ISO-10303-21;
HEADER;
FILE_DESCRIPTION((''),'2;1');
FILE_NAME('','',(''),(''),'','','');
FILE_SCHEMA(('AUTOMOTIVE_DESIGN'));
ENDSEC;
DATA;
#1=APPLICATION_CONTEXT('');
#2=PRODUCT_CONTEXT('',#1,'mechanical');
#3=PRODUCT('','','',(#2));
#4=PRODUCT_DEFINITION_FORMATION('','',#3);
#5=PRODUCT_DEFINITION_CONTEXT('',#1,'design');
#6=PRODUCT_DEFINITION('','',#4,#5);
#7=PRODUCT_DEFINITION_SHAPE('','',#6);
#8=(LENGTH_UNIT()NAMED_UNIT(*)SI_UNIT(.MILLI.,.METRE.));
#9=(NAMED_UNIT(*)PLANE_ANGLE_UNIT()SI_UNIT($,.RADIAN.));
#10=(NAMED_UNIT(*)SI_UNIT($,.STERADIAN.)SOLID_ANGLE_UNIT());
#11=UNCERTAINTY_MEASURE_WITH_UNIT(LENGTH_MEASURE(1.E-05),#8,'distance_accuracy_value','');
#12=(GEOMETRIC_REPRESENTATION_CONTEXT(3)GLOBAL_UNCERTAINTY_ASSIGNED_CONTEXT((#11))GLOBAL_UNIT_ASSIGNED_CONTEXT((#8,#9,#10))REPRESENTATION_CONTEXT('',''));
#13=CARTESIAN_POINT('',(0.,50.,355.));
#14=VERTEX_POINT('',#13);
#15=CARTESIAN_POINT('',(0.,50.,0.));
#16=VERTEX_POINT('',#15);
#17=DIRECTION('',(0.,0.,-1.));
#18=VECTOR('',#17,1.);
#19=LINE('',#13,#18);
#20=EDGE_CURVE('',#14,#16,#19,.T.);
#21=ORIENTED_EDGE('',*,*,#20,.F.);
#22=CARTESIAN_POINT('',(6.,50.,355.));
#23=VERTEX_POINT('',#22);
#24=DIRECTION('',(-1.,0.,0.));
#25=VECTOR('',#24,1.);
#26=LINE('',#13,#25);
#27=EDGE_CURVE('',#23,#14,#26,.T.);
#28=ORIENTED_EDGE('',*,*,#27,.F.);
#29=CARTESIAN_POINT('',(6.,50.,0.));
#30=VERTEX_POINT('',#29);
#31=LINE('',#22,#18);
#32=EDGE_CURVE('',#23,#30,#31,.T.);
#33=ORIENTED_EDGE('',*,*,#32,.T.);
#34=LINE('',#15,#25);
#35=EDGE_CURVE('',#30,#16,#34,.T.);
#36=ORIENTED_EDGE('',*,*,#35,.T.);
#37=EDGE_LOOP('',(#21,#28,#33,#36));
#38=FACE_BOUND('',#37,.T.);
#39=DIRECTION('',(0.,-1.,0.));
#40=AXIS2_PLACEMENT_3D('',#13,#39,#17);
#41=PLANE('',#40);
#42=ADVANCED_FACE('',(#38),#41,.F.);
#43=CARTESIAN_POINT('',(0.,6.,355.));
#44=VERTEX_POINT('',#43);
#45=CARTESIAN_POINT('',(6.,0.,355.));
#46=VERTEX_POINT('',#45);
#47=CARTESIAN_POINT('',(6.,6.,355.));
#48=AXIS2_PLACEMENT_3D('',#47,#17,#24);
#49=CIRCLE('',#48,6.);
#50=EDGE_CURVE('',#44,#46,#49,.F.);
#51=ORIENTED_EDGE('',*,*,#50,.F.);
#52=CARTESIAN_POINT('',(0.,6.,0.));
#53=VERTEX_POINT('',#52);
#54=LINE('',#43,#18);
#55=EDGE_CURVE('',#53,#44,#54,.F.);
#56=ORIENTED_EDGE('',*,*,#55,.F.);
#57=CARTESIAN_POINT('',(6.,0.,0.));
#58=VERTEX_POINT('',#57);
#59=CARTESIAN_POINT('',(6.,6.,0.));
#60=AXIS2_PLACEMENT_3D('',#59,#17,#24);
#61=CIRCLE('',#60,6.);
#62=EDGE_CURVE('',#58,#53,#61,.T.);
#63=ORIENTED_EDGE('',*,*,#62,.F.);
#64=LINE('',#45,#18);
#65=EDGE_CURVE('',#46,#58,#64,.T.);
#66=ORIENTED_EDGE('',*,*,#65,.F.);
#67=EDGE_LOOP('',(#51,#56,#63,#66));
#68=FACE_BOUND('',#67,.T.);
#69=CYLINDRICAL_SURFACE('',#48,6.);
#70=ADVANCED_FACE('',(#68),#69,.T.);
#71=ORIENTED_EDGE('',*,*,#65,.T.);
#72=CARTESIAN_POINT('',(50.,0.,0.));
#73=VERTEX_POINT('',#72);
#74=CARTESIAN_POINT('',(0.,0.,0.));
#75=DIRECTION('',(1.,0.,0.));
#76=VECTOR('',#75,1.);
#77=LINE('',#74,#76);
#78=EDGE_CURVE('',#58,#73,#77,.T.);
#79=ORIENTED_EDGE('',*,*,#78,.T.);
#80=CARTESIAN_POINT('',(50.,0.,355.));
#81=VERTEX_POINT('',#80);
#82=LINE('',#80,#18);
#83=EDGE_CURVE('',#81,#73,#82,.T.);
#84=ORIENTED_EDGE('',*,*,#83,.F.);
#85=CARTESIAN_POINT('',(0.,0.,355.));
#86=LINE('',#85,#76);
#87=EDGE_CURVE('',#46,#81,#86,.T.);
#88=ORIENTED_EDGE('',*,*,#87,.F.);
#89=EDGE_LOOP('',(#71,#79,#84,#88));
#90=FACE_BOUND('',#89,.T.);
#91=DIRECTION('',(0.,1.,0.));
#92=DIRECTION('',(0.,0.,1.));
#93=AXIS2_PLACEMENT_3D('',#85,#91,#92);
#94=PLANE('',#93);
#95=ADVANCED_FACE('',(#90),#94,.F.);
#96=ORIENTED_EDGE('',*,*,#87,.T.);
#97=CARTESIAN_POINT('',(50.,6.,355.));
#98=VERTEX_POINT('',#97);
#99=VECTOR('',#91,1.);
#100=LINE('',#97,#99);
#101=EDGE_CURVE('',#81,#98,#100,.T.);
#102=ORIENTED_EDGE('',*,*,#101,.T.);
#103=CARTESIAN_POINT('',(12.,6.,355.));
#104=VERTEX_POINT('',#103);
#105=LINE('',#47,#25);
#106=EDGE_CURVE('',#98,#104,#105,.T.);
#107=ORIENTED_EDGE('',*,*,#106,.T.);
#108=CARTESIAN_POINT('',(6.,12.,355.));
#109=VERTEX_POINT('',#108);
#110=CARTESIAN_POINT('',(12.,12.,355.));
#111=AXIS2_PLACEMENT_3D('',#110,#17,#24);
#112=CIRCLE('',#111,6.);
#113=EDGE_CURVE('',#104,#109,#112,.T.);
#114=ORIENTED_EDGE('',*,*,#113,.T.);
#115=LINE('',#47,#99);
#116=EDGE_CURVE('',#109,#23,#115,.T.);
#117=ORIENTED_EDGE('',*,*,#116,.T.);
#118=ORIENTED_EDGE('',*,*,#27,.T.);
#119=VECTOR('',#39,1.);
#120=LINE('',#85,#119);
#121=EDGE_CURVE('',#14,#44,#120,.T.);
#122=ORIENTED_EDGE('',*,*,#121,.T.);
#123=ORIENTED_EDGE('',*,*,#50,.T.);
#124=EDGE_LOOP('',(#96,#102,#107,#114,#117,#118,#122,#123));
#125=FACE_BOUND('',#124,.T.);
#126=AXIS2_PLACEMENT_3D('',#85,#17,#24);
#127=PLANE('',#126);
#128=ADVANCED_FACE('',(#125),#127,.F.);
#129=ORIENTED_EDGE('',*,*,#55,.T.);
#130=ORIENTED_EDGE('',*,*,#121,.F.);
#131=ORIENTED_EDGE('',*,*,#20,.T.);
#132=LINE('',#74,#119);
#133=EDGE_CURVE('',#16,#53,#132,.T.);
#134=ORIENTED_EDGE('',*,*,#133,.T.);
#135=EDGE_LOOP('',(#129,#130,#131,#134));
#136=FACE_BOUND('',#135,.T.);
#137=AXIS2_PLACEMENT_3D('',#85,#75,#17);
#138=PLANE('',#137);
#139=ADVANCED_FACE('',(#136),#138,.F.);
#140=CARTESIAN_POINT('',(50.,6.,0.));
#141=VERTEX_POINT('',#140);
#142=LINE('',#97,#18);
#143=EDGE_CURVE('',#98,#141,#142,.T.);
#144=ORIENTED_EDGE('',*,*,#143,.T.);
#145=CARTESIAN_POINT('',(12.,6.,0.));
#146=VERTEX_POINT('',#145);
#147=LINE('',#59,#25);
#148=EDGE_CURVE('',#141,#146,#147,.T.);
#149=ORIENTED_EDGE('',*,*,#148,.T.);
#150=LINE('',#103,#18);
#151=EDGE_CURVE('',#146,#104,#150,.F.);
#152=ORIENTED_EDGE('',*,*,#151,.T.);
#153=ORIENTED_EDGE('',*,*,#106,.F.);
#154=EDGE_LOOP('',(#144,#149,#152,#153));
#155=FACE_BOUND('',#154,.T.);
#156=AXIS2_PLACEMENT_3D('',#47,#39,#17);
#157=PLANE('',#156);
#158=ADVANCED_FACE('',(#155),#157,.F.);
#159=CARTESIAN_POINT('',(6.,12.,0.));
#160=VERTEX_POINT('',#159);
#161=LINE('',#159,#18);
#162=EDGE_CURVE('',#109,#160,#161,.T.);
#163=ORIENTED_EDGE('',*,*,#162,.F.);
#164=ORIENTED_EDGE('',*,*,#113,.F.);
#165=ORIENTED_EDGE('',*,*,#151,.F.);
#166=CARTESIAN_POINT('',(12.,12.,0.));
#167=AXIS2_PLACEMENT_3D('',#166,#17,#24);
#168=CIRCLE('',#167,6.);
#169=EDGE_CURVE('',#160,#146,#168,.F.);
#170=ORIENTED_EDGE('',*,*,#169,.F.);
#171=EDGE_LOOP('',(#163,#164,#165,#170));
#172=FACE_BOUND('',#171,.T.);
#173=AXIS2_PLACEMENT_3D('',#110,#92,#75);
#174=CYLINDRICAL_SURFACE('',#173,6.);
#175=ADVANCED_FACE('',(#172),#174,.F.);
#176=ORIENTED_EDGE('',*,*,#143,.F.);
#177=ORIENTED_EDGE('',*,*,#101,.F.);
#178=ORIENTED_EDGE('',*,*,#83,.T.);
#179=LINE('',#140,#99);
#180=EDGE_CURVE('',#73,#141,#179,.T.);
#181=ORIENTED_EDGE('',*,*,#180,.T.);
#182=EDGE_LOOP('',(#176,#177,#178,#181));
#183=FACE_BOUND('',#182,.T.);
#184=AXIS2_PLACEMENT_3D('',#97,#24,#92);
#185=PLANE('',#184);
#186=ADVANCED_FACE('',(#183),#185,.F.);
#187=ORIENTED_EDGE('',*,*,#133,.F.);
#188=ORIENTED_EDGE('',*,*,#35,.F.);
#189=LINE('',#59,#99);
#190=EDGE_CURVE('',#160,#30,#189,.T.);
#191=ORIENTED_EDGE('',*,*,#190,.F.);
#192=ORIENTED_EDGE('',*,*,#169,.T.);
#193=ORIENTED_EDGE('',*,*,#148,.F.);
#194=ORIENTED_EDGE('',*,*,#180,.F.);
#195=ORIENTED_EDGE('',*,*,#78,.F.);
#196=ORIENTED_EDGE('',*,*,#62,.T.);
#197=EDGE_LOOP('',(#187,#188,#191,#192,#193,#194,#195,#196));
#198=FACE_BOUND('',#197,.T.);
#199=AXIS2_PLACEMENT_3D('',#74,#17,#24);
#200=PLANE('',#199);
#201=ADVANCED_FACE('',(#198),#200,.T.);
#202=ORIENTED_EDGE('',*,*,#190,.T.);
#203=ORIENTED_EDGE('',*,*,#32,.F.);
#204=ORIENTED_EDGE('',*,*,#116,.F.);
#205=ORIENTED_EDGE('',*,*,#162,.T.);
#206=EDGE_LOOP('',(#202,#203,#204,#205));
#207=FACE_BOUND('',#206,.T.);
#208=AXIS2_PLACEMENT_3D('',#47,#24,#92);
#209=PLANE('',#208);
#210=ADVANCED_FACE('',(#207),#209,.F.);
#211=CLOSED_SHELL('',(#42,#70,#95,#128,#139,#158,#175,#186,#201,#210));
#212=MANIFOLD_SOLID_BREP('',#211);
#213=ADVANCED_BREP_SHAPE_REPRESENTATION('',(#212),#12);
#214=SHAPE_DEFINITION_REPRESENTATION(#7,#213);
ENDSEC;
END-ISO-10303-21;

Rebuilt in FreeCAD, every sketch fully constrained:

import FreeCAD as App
import Part
import Sketcher
Q = App.Units.Quantity


def edges_at(feature, points):
    """Names of the edges that pass closest to the given points."""
    edges = feature.Shape.Edges
    near = lambda p: min(range(len(edges)), key=lambda i: edges[i].distToShape(Part.Vertex(*p))[0])
    return sorted({f"Edge{near(p) + 1}" for p in points})


def add_polygon(sketch, points):
    """Adds a closed chain of lines whose ends are joined by coincident constraints."""
    first, n = sketch.GeometryCount, len(points)
    for a, b in zip(points, points[1:] + points[:1]):
        sketch.addGeometry(Part.LineSegment(App.Vector(*a, 0), App.Vector(*b, 0)), False)
    for i in range(n):
        sketch.addConstraint(Sketcher.Constraint("Coincident", first + i, 2, first + (i + 1) % n, 1))

doc = App.newDocument("Part")
body = doc.addObject("PartDesign::Body", "Body")

# Sketch on XY plane
sketch1 = body.newObject("Sketcher::SketchObject", "Sketch")
sketch1.AttachmentSupport = (doc.getObject("XY_Plane"), [""])
sketch1.MapMode = "FlatFace"
add_polygon(sketch1, [(0, 50), (0, 0), (50, 0), (50, 6), (6, 6), (6, 50)])  # lines 0-5
sketch1.addConstraint(Sketcher.Constraint("Vertical", 0))
sketch1.addConstraint(Sketcher.Constraint("Horizontal", 1))
sketch1.addConstraint(Sketcher.Constraint("Vertical", 2))
sketch1.addConstraint(Sketcher.Constraint("Horizontal", 3))
sketch1.addConstraint(Sketcher.Constraint("Vertical", 4))
sketch1.addConstraint(Sketcher.Constraint("Horizontal", 5))
sketch1.addConstraint(Sketcher.Constraint("Coincident", 0, 2, -1, 1))
sketch1.addConstraint(Sketcher.Constraint("Equal", 1, 0))
sketch1.addConstraint(Sketcher.Constraint("Equal", 5, 2))
sketch1.addConstraint(Sketcher.Constraint("DistanceX", 1, 1, 1, 2, Q("50 mm")))
sketch1.addConstraint(Sketcher.Constraint("DistanceX", 3, 2, 3, 1, Q("44 mm")))
pad1 = body.newObject("PartDesign::Pad", "Pad")
pad1.Profile = sketch1
pad1.Length = 355
doc.recompute()

fillet = body.newObject("PartDesign::Fillet", "Fillet")
fillet.Base = (pad1, edges_at(pad1, [(0, 0, 177.5), (6, 6, 177.5)]))
fillet.Radius = 6

doc.recompute()
